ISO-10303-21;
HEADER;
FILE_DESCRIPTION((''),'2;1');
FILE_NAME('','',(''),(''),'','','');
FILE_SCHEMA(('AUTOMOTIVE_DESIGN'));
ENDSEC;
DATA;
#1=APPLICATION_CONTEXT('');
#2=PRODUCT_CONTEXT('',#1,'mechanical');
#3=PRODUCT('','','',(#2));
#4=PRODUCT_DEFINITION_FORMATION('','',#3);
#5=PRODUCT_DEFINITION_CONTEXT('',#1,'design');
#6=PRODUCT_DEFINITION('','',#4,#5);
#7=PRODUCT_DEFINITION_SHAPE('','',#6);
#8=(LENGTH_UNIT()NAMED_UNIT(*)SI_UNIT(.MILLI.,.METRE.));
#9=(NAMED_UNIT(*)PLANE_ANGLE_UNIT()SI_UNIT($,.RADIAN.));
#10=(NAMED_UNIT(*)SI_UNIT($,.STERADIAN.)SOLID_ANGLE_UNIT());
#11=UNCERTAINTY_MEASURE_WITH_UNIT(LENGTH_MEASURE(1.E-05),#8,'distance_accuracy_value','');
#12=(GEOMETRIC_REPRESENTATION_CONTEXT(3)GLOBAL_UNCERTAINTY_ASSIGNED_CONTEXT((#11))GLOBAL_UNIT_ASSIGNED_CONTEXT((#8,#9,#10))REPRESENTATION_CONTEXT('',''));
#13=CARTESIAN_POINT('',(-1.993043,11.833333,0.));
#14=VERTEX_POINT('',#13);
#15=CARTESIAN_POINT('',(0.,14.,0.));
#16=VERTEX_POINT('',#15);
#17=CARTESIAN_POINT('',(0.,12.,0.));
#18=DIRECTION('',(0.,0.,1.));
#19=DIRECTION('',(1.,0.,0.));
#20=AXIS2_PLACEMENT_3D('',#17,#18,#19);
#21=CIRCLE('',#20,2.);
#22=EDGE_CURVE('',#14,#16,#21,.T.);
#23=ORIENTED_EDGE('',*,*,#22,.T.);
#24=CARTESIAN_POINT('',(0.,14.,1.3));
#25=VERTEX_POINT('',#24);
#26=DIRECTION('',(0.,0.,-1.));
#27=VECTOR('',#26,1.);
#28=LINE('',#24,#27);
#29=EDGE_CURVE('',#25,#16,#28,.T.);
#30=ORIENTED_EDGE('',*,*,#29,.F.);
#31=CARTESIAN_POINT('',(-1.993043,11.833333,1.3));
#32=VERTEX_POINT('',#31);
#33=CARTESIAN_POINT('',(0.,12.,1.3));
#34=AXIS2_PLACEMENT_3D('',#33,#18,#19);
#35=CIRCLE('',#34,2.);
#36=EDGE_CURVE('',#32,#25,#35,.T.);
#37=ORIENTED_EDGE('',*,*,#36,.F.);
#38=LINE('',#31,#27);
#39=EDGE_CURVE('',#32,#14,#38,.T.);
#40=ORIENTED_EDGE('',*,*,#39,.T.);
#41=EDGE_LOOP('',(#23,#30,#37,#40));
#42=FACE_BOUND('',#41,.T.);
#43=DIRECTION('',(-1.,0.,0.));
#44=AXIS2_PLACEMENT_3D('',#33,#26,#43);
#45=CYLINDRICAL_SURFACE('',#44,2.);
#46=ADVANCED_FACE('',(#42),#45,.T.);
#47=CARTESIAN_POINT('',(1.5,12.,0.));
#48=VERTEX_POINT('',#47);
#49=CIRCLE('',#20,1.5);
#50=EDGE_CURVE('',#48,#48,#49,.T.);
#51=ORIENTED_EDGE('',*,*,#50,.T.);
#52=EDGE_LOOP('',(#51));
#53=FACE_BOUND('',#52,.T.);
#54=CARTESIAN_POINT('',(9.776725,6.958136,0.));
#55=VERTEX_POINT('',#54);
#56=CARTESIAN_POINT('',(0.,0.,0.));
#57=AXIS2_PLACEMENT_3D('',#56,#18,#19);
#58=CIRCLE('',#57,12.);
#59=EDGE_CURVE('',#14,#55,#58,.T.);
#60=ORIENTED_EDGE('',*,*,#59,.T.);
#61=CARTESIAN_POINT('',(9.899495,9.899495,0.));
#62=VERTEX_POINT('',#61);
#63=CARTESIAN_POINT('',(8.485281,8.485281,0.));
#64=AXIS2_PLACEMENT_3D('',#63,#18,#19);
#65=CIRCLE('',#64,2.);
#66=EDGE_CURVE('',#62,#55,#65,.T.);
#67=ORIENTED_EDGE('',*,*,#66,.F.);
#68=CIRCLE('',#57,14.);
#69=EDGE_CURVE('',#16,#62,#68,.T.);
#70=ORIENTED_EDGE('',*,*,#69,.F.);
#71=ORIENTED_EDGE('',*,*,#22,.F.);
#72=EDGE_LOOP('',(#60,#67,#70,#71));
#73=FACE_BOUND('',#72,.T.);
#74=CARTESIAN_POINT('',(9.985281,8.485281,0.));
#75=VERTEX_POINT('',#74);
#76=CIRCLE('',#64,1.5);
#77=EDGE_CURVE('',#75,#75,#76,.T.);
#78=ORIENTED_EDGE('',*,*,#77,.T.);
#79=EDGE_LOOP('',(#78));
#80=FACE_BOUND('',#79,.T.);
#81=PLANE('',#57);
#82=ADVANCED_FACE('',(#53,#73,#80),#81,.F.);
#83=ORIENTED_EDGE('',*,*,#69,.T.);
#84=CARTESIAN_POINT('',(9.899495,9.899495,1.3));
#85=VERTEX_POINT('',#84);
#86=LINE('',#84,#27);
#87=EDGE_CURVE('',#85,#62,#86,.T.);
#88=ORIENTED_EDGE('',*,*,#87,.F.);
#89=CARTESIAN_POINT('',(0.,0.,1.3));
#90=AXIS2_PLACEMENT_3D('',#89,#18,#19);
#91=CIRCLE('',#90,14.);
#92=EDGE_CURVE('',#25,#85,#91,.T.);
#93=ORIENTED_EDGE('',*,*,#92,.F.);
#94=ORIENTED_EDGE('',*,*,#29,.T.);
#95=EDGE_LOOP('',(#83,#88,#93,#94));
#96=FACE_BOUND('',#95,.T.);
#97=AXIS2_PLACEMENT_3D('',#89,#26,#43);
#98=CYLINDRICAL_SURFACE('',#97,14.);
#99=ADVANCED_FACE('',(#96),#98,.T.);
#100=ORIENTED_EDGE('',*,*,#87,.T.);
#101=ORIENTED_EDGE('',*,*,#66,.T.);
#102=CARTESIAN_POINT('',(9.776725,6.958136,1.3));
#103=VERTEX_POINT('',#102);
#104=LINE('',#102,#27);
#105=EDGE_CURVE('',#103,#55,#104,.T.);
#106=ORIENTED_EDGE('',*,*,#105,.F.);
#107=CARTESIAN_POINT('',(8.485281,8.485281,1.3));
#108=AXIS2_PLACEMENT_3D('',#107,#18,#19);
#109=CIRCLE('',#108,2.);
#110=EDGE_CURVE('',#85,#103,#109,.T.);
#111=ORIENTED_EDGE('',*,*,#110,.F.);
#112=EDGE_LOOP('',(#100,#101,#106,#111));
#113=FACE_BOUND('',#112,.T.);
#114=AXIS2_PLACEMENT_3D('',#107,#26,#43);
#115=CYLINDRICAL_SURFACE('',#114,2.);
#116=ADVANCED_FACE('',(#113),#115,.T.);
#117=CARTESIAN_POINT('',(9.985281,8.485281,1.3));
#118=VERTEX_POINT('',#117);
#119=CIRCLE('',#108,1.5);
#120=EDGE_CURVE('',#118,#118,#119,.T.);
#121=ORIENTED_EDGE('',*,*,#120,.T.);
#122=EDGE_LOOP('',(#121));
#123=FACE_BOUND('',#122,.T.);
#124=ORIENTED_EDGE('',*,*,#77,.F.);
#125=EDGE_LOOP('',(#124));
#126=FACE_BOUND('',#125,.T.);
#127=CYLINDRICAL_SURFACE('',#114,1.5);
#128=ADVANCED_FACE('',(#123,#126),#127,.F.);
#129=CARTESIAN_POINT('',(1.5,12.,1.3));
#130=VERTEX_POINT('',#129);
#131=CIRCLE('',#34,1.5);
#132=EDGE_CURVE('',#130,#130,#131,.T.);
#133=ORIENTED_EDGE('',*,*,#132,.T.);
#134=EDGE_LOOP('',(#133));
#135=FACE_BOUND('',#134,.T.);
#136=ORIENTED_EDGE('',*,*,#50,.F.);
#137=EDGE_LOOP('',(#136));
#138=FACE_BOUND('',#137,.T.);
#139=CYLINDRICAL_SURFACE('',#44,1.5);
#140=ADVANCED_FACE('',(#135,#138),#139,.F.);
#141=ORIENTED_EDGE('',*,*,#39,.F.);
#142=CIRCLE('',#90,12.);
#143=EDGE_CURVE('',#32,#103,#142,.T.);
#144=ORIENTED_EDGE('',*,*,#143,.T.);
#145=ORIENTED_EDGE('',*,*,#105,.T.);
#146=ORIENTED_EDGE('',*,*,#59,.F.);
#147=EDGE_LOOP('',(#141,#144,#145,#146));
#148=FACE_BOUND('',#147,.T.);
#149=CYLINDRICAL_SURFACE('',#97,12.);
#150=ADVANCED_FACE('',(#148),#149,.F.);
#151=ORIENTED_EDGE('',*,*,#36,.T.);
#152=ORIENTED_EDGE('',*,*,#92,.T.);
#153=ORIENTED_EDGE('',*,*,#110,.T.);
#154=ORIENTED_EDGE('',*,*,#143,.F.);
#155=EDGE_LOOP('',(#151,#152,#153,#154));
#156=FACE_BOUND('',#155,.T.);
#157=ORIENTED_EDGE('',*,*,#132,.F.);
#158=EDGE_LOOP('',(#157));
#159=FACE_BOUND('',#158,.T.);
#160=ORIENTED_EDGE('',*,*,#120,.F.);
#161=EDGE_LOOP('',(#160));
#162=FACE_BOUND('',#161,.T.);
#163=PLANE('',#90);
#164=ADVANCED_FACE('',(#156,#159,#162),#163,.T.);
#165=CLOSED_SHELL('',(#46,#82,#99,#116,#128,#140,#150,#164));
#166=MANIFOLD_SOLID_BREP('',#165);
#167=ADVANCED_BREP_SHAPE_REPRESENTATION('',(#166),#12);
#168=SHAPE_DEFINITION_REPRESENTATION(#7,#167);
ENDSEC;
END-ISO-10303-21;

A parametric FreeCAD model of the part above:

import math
import FreeCAD as App
import Part
import Sketcher
from FreeCAD import Vector

doc = App.newDocument("Part")
body = doc.addObject("PartDesign::Body", "Body")

sketch1 = body.newObject("Sketcher::SketchObject", "Sketch")
sketch1.AttachmentSupport = (doc.getObject("XY_Plane"), [""])
sketch1.MapMode = "FlatFace"
sketch1.addGeometry([
    Part.ArcOfCircle(Part.Circle(Vector(0, 0, 0), Vector(0, 0, 1), 14), math.radians(90), math.radians(405)),
    Part.ArcOfCircle(Part.Circle(Vector(8.5, 8.5, 0), Vector(0, 0, 1), 2), math.radians(45), math.radians(310)),
    Part.ArcOfCircle(Part.Circle(Vector(0, 0, 0), Vector(0, 0, 1), 12), math.radians(100), math.radians(395)),
    Part.ArcOfCircle(Part.Circle(Vector(0, 12, 0), Vector(0, 0, 1), 2), math.radians(-175), math.radians(90)),
    Part.Circle(Vector(8.5, 8.5, 0), Vector(0, 0, 1), 1.5),
    Part.Circle(Vector(0, 12, 0), Vector(0, 0, 1), 1.5),
], False)
sketch1.addConstraint([
    Sketcher.Constraint("Tangent", 0, 2, 1, 1),
    Sketcher.Constraint("Coincident", 1, 2, 2, 2),
    Sketcher.Constraint("Coincident", 2, 1, 3, 1),
    Sketcher.Constraint("Tangent", 3, 2, 0, 1),
    Sketcher.Constraint("Coincident", 0, 3, -1, 1),
    Sketcher.Constraint("Coincident", 2, 3, -1, 1),
    Sketcher.Constraint("Coincident", 4, 3, 1, 3),
    Sketcher.Constraint("Coincident", 5, 3, 3, 3),
    Sketcher.Constraint("Equal", 1, 3),
    Sketcher.Constraint("Equal", 4, 5),
    Sketcher.Constraint("PointOnObject", 3, 3, -2),
    Sketcher.Constraint("Diameter", 4, 3.0),
    Sketcher.Constraint("Radius", 0, 14.0),
    Sketcher.Constraint("Radius", 1, 2.0),
    Sketcher.Constraint("Radius", 2, 12.0),
    Sketcher.Constraint("DistanceX", -1, 1, 1, 3, 8.485281),
])
pad1 = body.newObject("PartDesign::Pad", "Pad")
pad1.Profile = sketch1
pad1.Length = 1.3

doc.recompute()
